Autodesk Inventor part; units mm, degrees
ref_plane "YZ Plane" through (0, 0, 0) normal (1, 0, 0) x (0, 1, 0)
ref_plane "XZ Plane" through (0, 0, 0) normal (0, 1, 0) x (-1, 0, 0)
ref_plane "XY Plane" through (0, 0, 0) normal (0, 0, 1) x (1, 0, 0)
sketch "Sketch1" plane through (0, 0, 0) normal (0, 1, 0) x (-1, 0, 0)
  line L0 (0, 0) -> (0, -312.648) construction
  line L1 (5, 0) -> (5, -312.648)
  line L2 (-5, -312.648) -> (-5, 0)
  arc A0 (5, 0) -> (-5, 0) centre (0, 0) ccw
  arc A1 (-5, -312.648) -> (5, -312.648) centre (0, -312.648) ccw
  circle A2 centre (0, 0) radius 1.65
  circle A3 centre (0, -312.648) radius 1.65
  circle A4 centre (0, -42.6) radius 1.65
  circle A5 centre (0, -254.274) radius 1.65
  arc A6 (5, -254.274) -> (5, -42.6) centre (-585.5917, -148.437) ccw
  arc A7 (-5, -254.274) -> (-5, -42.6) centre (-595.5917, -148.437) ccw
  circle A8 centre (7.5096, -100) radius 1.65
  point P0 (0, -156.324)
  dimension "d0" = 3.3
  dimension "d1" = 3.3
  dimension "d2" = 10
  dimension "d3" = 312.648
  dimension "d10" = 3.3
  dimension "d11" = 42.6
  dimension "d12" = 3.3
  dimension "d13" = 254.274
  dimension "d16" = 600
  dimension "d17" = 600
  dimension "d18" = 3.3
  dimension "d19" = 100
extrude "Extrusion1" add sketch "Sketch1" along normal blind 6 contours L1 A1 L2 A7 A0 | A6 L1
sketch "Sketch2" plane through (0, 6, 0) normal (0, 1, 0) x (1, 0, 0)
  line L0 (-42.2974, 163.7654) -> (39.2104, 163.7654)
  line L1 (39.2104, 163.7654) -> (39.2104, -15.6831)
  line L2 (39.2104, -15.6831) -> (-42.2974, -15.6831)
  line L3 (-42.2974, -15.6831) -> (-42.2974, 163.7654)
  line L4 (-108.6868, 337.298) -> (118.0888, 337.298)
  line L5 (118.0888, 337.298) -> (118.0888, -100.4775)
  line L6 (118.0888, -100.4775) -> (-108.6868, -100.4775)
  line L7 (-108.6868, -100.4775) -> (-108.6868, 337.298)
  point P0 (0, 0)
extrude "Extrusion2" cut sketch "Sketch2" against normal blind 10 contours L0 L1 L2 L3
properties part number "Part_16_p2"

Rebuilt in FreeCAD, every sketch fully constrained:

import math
import FreeCAD as App
import Part
import Sketcher

V = App.Vector


def add_polygon(sketch, points):
    """Adds a closed chain of lines whose ends are joined by coincident constraints."""
    first, n = sketch.GeometryCount, len(points)
    for a, b in zip(points, points[1:] + points[:1]):
        sketch.addGeometry(Part.LineSegment(App.Vector(*a, 0), App.Vector(*b, 0)), False)
    for i in range(n):
        sketch.addConstraint(Sketcher.Constraint("Coincident", first + i, 2, first + (i + 1) % n, 1))

doc = App.newDocument("Part")
body = doc.addObject("PartDesign::Body", "Body")

# Sketch on XZ plane
sketch1 = body.newObject("Sketcher::SketchObject", "Sketch")
sketch1.AttachmentSupport = (doc.getObject("XZ_Plane"), [""])
sketch1.MapMode = "FlatFace"
sketch1.addGeometry(Part.LineSegment(V(-5, -42.6, 0), V(-5, 0, 0)), False)
sketch1.addGeometry(Part.ArcOfCircle(Part.Circle(V(0, 0, 0), V(0, 0, 1), 5), math.radians(0), math.radians(180)), False)
sketch1.addGeometry(Part.LineSegment(V(5, 0, 0), V(5, -42.6, 0)), False)
sketch1.addGeometry(Part.ArcOfCircle(Part.Circle(V(595.6, -148.4, 0), V(0, 0, 1), 600), math.radians(170), math.radians(190)), False)
sketch1.addGeometry(Part.LineSegment(V(5, -254.3, 0), V(5, -312.6, 0)), False)
sketch1.addGeometry(Part.ArcOfCircle(Part.Circle(V(0, -312.6, 0), V(0, 0, 1), 5), math.radians(180), math.radians(360)), False)
sketch1.addGeometry(Part.LineSegment(V(-5, -312.6, 0), V(-5, -254.3, 0)), False)
sketch1.addGeometry(Part.ArcOfCircle(Part.Circle(V(585.6, -148.4, 0), V(0, 0, 1), 600), math.radians(170), math.radians(190)), False)
sketch1.addGeometry(Part.Circle(V(0, -312.6, 0), V(0, 0, 1), 1.6), False)
sketch1.addGeometry(Part.Circle(V(0, -254.3, 0), V(0, 0, 1), 1.6), False)
sketch1.addGeometry(Part.Circle(V(0, -42.6, 0), V(0, 0, 1), 1.6), False)
sketch1.addGeometry(Part.Circle(V(0, 0, 0), V(0, 0, 1), 1.6), False)
sketch1.addGeometry(Part.Circle(V(-7.5, -100, 0), V(0, 0, 1), 1.6), False)
sketch1.addConstraint(Sketcher.Constraint("Tangent", 0, 2, 1, 2))
sketch1.addConstraint(Sketcher.Constraint("Tangent", 1, 1, 2, 1))
sketch1.addConstraint(Sketcher.Constraint("Coincident", 2, 2, 3, 1))
sketch1.addConstraint(Sketcher.Constraint("Coincident", 3, 2, 4, 1))
sketch1.addConstraint(Sketcher.Constraint("Tangent", 4, 2, 5, 2))
sketch1.addConstraint(Sketcher.Constraint("Tangent", 5, 1, 6, 1))
sketch1.addConstraint(Sketcher.Constraint("Coincident", 6, 2, 7, 2))
sketch1.addConstraint(Sketcher.Constraint("Coincident", 7, 1, 0, 1))
sketch1.addConstraint(Sketcher.Constraint("Vertical", 0))
sketch1.addConstraint(Sketcher.Constraint("Vertical", 2))
sketch1.addConstraint(Sketcher.Constraint("Vertical", 4))
sketch1.addConstraint(Sketcher.Constraint("Vertical", 6))
sketch1.addConstraint(Sketcher.Constraint("Coincident", 1, 3, -1, 1))
sketch1.addConstraint(Sketcher.Constraint("Coincident", 11, 3, -1, 1))
sketch1.addConstraint(Sketcher.Constraint("Coincident", 8, 3, 5, 3))
sketch1.addConstraint(Sketcher.Constraint("Equal", 1, 5))
sketch1.addConstraint(Sketcher.Constraint("Equal", 3, 7))
sketch1.addConstraint(Sketcher.Constraint("Equal", 8, 9))
sketch1.addConstraint(Sketcher.Constraint("Equal", 9, 10))
sketch1.addConstraint(Sketcher.Constraint("Equal", 10, 11))
sketch1.addConstraint(Sketcher.Constraint("Equal", 11, 12))
sketch1.addConstraint(Sketcher.Constraint("Symmetric", 3, 2, 6, 2, -2))
sketch1.addConstraint(Sketcher.Constraint("PointOnObject", 9, 3, -2))
sketch1.addConstraint(Sketcher.Constraint("PointOnObject", 10, 3, -2))
sketch1.addConstraint(Sketcher.Constraint("Horizontal", 3, 3, 7, 3))
sketch1.addConstraint(Sketcher.Constraint("Horizontal", 10, 3, 2, 2))
sketch1.addConstraint(Sketcher.Constraint("Horizontal", 9, 3, 3, 2))
sketch1.addConstraint(Sketcher.Constraint("Radius", 1, 5.0))
sketch1.addConstraint(Sketcher.Constraint("Radius", 3, 600.0))
sketch1.addConstraint(Sketcher.Constraint("Diameter", 8, 3.3))
sketch1.addConstraint(Sketcher.Constraint("DistanceY", 0, 1, 0, 2, 42.6))
sketch1.addConstraint(Sketcher.Constraint("DistanceY", 12, 3, -1, 1, 100.0))
sketch1.addConstraint(Sketcher.Constraint("DistanceY", 5, 3, -1, 1, 312.648))
sketch1.addConstraint(Sketcher.Constraint("DistanceY", 9, 3, -1, 1, 254.274))
sketch1.addConstraint(Sketcher.Constraint("DistanceX", 12, 3, -1, 1, 7.5096))
pad1 = body.newObject("PartDesign::Pad", "Pad")
pad1.Profile = sketch1
pad1.Length = 6
pad1.Reversed = True

# Sketch on XZ plane
sketch2 = body.newObject("Sketcher::SketchObject", "Sketch001")
sketch2.AttachmentSupport = (doc.getObject("XZ_Plane"), [""])
sketch2.MapMode = "FlatFace"
sketch2.AttachmentOffset = App.Placement(V(0, 0, -6), App.Rotation())
add_polygon(sketch2, [(39, -164), (-42, -164), (-42, 16), (39, 16)])  # lines 0-3
sketch2.addConstraint(Sketcher.Constraint("Horizontal", 0))
sketch2.addConstraint(Sketcher.Constraint("Vertical", 1))
sketch2.addConstraint(Sketcher.Constraint("Horizontal", 2))
sketch2.addConstraint(Sketcher.Constraint("Vertical", 3))
sketch2.addConstraint(Sketcher.Constraint("DistanceX", 0, 2, 0, 1, 81.5078))
sketch2.addConstraint(Sketcher.Constraint("DistanceY", 1, 1, 1, 2, 179.4485))
sketch2.addConstraint(Sketcher.Constraint("DistanceY", -1, 1, 1, 2, 15.683))
sketch2.addConstraint(Sketcher.Constraint("DistanceX", 0, 2, -1, 1, 42.2974))
pocket1 = body.newObject("PartDesign::Pocket", "Pocket")
pocket1.Profile = sketch2
pocket1.Length = 10
pocket1.Reversed = True

doc.recompute()
